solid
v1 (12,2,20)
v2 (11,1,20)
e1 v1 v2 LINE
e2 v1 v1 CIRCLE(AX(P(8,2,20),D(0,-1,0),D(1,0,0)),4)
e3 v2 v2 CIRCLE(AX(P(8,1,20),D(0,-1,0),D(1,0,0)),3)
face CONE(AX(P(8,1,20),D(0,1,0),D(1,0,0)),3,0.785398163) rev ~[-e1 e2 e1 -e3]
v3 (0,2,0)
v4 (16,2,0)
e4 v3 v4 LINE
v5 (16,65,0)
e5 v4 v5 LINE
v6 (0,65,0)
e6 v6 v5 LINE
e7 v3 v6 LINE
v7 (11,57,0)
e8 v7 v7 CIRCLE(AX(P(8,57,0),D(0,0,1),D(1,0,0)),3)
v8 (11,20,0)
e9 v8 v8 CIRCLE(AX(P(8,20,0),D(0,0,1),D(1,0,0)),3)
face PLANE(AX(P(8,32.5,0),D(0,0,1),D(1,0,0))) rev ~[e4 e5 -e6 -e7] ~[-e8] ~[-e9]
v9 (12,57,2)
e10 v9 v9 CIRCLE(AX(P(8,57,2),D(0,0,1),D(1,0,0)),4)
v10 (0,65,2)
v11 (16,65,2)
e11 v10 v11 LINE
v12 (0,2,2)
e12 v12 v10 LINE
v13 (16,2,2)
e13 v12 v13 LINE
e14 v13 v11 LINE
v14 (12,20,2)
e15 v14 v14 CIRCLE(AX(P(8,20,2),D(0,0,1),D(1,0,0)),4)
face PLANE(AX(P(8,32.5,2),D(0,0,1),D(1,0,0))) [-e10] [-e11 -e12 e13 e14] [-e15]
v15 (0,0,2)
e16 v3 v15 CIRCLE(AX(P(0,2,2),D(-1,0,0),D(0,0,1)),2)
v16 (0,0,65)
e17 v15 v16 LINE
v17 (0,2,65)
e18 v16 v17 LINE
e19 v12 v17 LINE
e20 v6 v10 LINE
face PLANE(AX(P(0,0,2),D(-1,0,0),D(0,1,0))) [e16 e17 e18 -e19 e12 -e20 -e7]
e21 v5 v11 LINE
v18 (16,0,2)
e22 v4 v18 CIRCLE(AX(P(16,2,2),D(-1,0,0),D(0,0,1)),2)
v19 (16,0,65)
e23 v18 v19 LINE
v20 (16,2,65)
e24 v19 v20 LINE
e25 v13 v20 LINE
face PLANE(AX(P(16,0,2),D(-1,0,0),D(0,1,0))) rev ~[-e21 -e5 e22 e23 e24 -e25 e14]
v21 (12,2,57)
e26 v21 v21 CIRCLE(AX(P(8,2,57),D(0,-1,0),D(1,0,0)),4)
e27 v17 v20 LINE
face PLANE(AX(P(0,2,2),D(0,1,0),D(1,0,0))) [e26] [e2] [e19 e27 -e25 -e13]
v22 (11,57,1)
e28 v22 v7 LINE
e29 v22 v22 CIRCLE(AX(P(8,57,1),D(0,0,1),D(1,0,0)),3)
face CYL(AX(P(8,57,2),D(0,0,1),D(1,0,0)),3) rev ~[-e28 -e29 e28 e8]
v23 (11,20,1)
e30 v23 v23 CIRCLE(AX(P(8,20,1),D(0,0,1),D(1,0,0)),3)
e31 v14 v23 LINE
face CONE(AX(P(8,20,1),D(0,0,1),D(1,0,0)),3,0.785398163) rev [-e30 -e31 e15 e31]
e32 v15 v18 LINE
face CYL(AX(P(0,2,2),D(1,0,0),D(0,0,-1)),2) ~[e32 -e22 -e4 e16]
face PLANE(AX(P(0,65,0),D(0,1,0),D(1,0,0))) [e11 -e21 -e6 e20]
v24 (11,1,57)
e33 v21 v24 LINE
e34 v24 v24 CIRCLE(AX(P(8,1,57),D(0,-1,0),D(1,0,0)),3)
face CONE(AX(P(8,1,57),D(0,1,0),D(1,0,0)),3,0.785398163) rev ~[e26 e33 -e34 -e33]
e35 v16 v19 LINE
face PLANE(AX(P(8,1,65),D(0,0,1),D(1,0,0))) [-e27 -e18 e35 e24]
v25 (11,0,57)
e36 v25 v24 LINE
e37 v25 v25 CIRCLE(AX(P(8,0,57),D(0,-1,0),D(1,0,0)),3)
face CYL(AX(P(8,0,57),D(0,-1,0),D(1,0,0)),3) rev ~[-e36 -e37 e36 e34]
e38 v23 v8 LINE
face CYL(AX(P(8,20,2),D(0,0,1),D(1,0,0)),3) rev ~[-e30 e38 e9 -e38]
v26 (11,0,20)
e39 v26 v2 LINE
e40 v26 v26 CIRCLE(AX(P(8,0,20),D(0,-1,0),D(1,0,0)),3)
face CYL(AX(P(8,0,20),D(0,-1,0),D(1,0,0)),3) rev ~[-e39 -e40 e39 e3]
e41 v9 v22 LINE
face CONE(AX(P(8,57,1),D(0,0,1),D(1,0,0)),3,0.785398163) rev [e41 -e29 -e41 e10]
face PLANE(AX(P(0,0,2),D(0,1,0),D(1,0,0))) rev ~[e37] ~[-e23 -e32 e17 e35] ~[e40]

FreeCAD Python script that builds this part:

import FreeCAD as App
import Part
import Sketcher
from FreeCAD import Vector


def edges_at(feature, points):
    """Names of the edges that pass closest to the given points."""
    edges = feature.Shape.Edges
    near = lambda p: min(range(len(edges)), key=lambda i: edges[i].distToShape(Part.Vertex(*p))[0])
    return sorted({f"Edge{near(p) + 1}" for p in points})


def add_polygon(sketch, points):
    """Adds a closed chain of lines whose ends are joined by coincident constraints."""
    first, n = sketch.GeometryCount, len(points)
    for a, b in zip(points, points[1:] + points[:1]):
        sketch.addGeometry(Part.LineSegment(App.Vector(*a, 0), App.Vector(*b, 0)), False)
    for i in range(n):
        sketch.addConstraint(Sketcher.Constraint("Coincident", first + i, 2, first + (i + 1) % n, 1))

doc = App.newDocument("Part")
body = doc.addObject("PartDesign::Body", "Body")

# Sketch on XY plane
sketch1 = doc.addObject("Sketcher::SketchObject", "Sketch")
body.addObject(sketch1)
sketch1.AttachmentSupport = (doc.XY_Plane, [""])
sketch1.MapMode = "FlatFace"
add_polygon(sketch1, [(0, 65), (0, 0), (16, 0), (16, 65)])  # lines 0-3
sketch1.addConstraint(Sketcher.Constraint("Vertical", 0))
sketch1.addConstraint(Sketcher.Constraint("Horizontal", 1))
sketch1.addConstraint(Sketcher.Constraint("Vertical", 2))
sketch1.addConstraint(Sketcher.Constraint("Horizontal", 3))
sketch1.addConstraint(Sketcher.Constraint("Coincident", 0, 2, -1, 1))
sketch1.addConstraint(Sketcher.Constraint("DistanceX", 1, 1, 1, 2, 16.0))
sketch1.addConstraint(Sketcher.Constraint("DistanceY", 0, 2, 0, 1, 65.0))
pad1 = doc.addObject("PartDesign::Pad", "Pad")
body.addObject(pad1)
pad1.Profile = sketch1
pad1.Length = 2

# Sketch on XY plane
sketch2 = doc.addObject("Sketcher::SketchObject", "Sketch001")
body.addObject(sketch2)
sketch2.AttachmentSupport = (doc.XY_Plane, [""])
sketch2.MapMode = "FlatFace"
sketch2.AttachmentOffset = App.Placement(Vector(0, 0, 2), App.Rotation())
add_polygon(sketch2, [(0, 2), (0, 0), (16, 0), (16, 2)])  # lines 0-3
sketch2.addConstraint(Sketcher.Constraint("Vertical", 0))
sketch2.addConstraint(Sketcher.Constraint("Horizontal", 1))
sketch2.addConstraint(Sketcher.Constraint("Vertical", 2))
sketch2.addConstraint(Sketcher.Constraint("Horizontal", 3))
sketch2.addConstraint(Sketcher.Constraint("Coincident", 0, 2, -1, 1))
sketch2.addConstraint(Sketcher.Constraint("DistanceX", 1, 1, 1, 2, 16.0))
sketch2.addConstraint(Sketcher.Constraint("DistanceY", 0, 2, 0, 1, 2.0))
pad2 = doc.addObject("PartDesign::Pad", "Pad001")
body.addObject(pad2)
pad2.Profile = sketch2
pad2.Length = 63

# Sketch on XY plane
sketch3 = doc.addObject("Sketcher::SketchObject", "Sketch002")
body.addObject(sketch3)
sketch3.AttachmentSupport = (doc.XY_Plane, [""])
sketch3.MapMode = "FlatFace"
sketch3.AttachmentOffset = App.Placement(Vector(0, 0, 2), App.Rotation())
sketch3.addGeometry(Part.Circle(Vector(8, 57, 0), Vector(0, 0, 1), 3), False)
sketch3.addGeometry(Part.Circle(Vector(8, 20, 0), Vector(0, 0, 1), 3), False)
sketch3.addConstraint(Sketcher.Constraint("Equal", 0, 1))
sketch3.addConstraint(Sketcher.Constraint("Vertical", 0, 3, 1, 3))
sketch3.addConstraint(Sketcher.Constraint("Diameter", 0, 6.0))
sketch3.addConstraint(Sketcher.Constraint("DistanceX", -1, 1, 0, 3, 8.0))
sketch3.addConstraint(Sketcher.Constraint("DistanceY", -1, 1, 0, 3, 57.0))
sketch3.addConstraint(Sketcher.Constraint("DistanceY", -1, 1, 1, 3, 20.0))
pocket1 = doc.addObject("PartDesign::Pocket", "Pocket")
body.addObject(pocket1)
pocket1.Profile = sketch3
pocket1.Type = "ThroughAll"

# Sketch on XZ plane
sketch4 = doc.addObject("Sketcher::SketchObject", "Sketch003")
body.addObject(sketch4)
sketch4.AttachmentSupport = (doc.XZ_Plane, [""])
sketch4.MapMode = "FlatFace"
sketch4.addGeometry(Part.Circle(Vector(8, 57, 0), Vector(0, 0, 1), 3), False)
sketch4.addGeometry(Part.Circle(Vector(8, 20, 0), Vector(0, 0, 1), 3), False)
sketch4.addConstraint(Sketcher.Constraint("Equal", 0, 1))
sketch4.addConstraint(Sketcher.Constraint("Vertical", 0, 3, 1, 3))
sketch4.addConstraint(Sketcher.Constraint("Diameter", 0, 6.0))
sketch4.addConstraint(Sketcher.Constraint("DistanceX", -1, 1, 0, 3, 8.0))
sketch4.addConstraint(Sketcher.Constraint("DistanceY", -1, 1, 0, 3, 57.0))
sketch4.addConstraint(Sketcher.Constraint("DistanceY", -1, 1, 1, 3, 20.0))
pocket2 = doc.addObject("PartDesign::Pocket", "Pocket001")
body.addObject(pocket2)
pocket2.Profile = sketch4
pocket2.Type = "ThroughAll"
doc.recompute()

chamfer = doc.addObject("PartDesign::Chamfer", "Chamfer")
body.addObject(chamfer)
chamfer.Base = (pocket2, edges_at(pocket2, [
    (5, 2, 57),
    (5, 2, 20),
    (5, 20, 2),
    (5, 57, 2),
]))
chamfer.Size = 1
doc.recompute()

fillet = doc.addObject("PartDesign::Fillet", "Fillet")
body.addObject(fillet)
fillet.Base = (chamfer, edges_at(chamfer, [(8, 0, 0)]))
fillet.Radius = 2

doc.recompute()
